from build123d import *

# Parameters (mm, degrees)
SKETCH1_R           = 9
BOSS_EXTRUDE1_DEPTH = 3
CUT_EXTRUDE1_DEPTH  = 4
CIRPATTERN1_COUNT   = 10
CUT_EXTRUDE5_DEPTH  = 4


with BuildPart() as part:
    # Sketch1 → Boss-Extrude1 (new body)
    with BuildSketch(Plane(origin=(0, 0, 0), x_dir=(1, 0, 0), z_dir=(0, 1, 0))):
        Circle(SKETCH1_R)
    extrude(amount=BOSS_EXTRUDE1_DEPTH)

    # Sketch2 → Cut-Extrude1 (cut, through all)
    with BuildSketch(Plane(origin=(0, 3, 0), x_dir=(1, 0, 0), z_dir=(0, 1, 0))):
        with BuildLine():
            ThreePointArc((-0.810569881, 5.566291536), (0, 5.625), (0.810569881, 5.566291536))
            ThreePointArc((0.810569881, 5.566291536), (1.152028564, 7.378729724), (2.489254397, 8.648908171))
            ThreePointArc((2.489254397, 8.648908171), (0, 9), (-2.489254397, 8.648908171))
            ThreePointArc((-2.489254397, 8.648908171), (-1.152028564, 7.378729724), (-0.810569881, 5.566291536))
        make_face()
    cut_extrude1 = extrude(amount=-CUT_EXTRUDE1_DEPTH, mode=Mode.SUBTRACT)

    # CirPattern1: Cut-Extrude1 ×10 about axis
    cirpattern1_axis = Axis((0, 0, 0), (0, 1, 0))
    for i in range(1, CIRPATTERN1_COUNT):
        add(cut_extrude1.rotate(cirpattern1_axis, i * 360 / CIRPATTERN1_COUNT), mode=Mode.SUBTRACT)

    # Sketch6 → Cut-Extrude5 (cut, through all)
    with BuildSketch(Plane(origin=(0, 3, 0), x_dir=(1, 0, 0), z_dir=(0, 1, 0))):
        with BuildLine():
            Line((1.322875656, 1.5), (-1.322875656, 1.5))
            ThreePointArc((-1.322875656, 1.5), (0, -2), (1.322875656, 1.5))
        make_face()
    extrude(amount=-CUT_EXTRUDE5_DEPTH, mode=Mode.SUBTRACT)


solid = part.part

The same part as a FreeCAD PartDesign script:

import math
import FreeCAD as App
import Part
import Sketcher
from FreeCAD import Vector

doc = App.newDocument("Part")
params = doc.addObject("Spreadsheet::Sheet", "Params")
for row, (alias, value) in enumerate([
    ("sketch1_diameter", "18 mm"),
    ("pad1_length", "3 mm"),
    ("sketch2_radius", "3 mm"),
    ("sketch2_radius2", "9 mm"),
    ("sketch3_radius", "2 mm"),
], start=1):
    params.set(f"A{row}", alias)
    params.set(f"B{row}", "=" + value)
    params.setAlias(f"B{row}", alias)

body = doc.addObject("PartDesign::Body", "Body")

# Sketch on XZ plane
sketch1 = body.newObject("Sketcher::SketchObject", "Sketch")
sketch1.AttachmentSupport = (doc.getObject("XZ_Plane"), [""])
sketch1.MapMode = "FlatFace"
sketch1.addGeometry(Part.Circle(Vector(0, 0, 0), Vector(0, 0, 1), 9), False)
sketch1.addConstraint(Sketcher.Constraint("Coincident", 0, 3, -1, 1))
sketch1.addConstraint(Sketcher.Constraint("Diameter", 0, 18.0))
sketch1.setExpression("Constraints[1]", "Params.sketch1_diameter")
pad1 = body.newObject("PartDesign::Pad", "Pad")
pad1.Profile = sketch1
pad1.setExpression("Length", "Params.pad1_length")
pad1.Reversed = True

# Sketch on XZ plane
sketch2 = body.newObject("Sketcher::SketchObject", "Sketch001")
sketch2.AttachmentSupport = (doc.getObject("XZ_Plane"), [""])
sketch2.MapMode = "FlatFace"
sketch2.AttachmentOffset = App.Placement(Vector(0, 0, -3), App.Rotation())
sketch2.addGeometry(Part.ArcOfCircle(Part.Circle(Vector(0, 0, 0), Vector(0, 0, 1), 5.6), math.radians(-98.29), math.radians(-81.71)), False)
sketch2.addGeometry(Part.ArcOfCircle(Part.Circle(Vector(3.8, -5.9, 0), Vector(0, 0, 1), 3), math.radians(173), math.radians(244)), False)
sketch2.addGeometry(Part.ArcOfCircle(Part.Circle(Vector(0, 0, 0), Vector(0, 0, 1), 9), math.radians(-106), math.radians(-74)), False)
sketch2.addGeometry(Part.ArcOfCircle(Part.Circle(Vector(-3.8, -5.9, 0), Vector(0, 0, 1), 3), math.radians(-64), math.radians(7)), False)
sketch2.addConstraint(Sketcher.Constraint("Coincident", 0, 2, 1, 1))
sketch2.addConstraint(Sketcher.Constraint("Coincident", 1, 2, 2, 2))
sketch2.addConstraint(Sketcher.Constraint("Coincident", 2, 1, 3, 1))
sketch2.addConstraint(Sketcher.Constraint("Coincident", 3, 2, 0, 1))
sketch2.addConstraint(Sketcher.Constraint("Coincident", 0, 3, -1, 1))
sketch2.addConstraint(Sketcher.Constraint("Coincident", 2, 3, -1, 1))
sketch2.addConstraint(Sketcher.Constraint("Equal", 1, 3))
sketch2.addConstraint(Sketcher.Constraint("Symmetric", 1, 3, 3, 3, -2))
sketch2.addConstraint(Sketcher.Constraint("Radius", 1, 3.0))
sketch2.addConstraint(Sketcher.Constraint("Radius", 2, 9.0))
sketch2.addConstraint(Sketcher.Constraint("Radius", 0, 5.625))
sketch2.addConstraint(Sketcher.Constraint("DistanceX", -1, 1, 1, 3, 3.7867))
sketch2.addConstraint(Sketcher.Constraint("DistanceY", 1, 3, -1, 1, 5.94398))
sketch2.setExpression("Constraints[8]", "Params.sketch2_radius")
sketch2.setExpression("Constraints[9]", "Params.sketch2_radius2")
pocket1 = body.newObject("PartDesign::Pocket", "Pocket")
pocket1.Profile = sketch2
pocket1.Type = "ThroughAll"
pocket1.Reversed = True
doc.recompute()

polarpattern = body.newObject("PartDesign::PolarPattern", "PolarPattern")
polarpattern.Originals = [pocket1]
polarpattern.Axis = (doc.getObject("Y_Axis"), [""])
polarpattern.Angle = 360
polarpattern.Occurrences = 10
body.Tip = polarpattern

# Sketch on XZ plane
sketch3 = body.newObject("Sketcher::SketchObject", "Sketch002")
sketch3.AttachmentSupport = (doc.getObject("XZ_Plane"), [""])
sketch3.MapMode = "FlatFace"
sketch3.AttachmentOffset = App.Placement(Vector(0, 0, -3), App.Rotation())
sketch3.addGeometry(Part.LineSegment(Vector(1.3, -1.5, 0), Vector(-1.3, -1.5, 0)), False)
sketch3.addGeometry(Part.ArcOfCircle(Part.Circle(Vector(0, 0, 0), Vector(0, 0, 1), 2), math.radians(-49), math.radians(229)), False)
sketch3.addConstraint(Sketcher.Constraint("Coincident", 0, 1, 1, 1))
sketch3.addConstraint(Sketcher.Constraint("Coincident", 1, 2, 0, 2))
sketch3.addConstraint(Sketcher.Constraint("Horizontal", 0))
sketch3.addConstraint(Sketcher.Constraint("Coincident", 1, 3, -1, 1))
sketch3.addConstraint(Sketcher.Constraint("Radius", 1, 2.0))
sketch3.addConstraint(Sketcher.Constraint("DistanceY", 0, 1, -1, 1, 1.5))
sketch3.setExpression("Constraints[4]", "Params.sketch3_radius")
pocket2 = body.newObject("PartDesign::Pocket", "Pocket001")
pocket2.Profile = sketch3
pocket2.Type = "ThroughAll"
pocket2.Reversed = True

doc.recompute()
